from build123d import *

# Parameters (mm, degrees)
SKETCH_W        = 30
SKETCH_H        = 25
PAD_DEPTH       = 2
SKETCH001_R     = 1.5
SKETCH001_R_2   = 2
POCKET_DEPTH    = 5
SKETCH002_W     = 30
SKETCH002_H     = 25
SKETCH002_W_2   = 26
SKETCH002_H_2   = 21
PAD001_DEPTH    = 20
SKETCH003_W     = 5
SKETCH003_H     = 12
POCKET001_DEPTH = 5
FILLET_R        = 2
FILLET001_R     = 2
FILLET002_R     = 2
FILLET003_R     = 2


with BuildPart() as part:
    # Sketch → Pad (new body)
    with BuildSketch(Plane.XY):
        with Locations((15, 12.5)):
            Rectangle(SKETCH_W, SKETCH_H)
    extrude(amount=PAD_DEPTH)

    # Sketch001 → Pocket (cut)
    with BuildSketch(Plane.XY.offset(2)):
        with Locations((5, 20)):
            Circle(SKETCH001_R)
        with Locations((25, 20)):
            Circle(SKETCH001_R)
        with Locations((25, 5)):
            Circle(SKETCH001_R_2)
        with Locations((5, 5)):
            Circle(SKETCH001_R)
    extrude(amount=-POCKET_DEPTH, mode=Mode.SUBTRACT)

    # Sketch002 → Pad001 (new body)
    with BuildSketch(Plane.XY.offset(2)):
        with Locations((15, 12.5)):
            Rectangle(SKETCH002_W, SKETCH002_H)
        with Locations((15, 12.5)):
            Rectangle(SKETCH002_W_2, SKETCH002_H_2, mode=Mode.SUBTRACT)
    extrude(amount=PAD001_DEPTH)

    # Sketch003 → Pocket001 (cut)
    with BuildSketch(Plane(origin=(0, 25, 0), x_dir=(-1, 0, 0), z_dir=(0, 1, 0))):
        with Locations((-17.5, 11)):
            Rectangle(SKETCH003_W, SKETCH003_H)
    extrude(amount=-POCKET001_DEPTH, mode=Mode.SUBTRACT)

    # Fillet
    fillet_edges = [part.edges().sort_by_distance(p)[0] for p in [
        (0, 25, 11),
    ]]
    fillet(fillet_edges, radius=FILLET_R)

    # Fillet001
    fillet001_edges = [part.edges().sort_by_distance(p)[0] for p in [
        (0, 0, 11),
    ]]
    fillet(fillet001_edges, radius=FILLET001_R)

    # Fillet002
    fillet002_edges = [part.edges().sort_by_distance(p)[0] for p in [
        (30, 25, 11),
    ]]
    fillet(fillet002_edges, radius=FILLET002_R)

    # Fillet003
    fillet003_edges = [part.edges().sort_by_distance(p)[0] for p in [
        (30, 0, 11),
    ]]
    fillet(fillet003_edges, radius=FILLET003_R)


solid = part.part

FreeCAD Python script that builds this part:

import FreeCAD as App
import Part
import Sketcher


def edges_at(feature, points):
    """Names of the edges that pass closest to the given points."""
    edges = feature.Shape.Edges
    near = lambda p: min(range(len(edges)), key=lambda i: edges[i].distToShape(Part.Vertex(*p))[0])
    return sorted({f"Edge{near(p) + 1}" for p in points})


def add_polygon(sketch, points):
    """Adds a closed chain of lines whose ends are joined by coincident constraints."""
    first, n = sketch.GeometryCount, len(points)
    for a, b in zip(points, points[1:] + points[:1]):
        sketch.addGeometry(Part.LineSegment(App.Vector(*a, 0), App.Vector(*b, 0)), False)
    for i in range(n):
        sketch.addConstraint(Sketcher.Constraint("Coincident", first + i, 2, first + (i + 1) % n, 1))

doc = App.newDocument("Part")
body = doc.addObject("PartDesign::Body", "Body")

# Sketch on XY plane
sketch1 = body.newObject("Sketcher::SketchObject", "Sketch")
sketch1.AttachmentSupport = (doc.getObject("XY_Plane"), [""])
sketch1.MapMode = "FlatFace"
add_polygon(sketch1, [(0, 25), (0, 0), (30, 0), (30, 25)])  # lines 0-3
sketch1.addConstraint([
    Sketcher.Constraint("Vertical", 0),
    Sketcher.Constraint("Horizontal", 1),
    Sketcher.Constraint("Vertical", 2),
    Sketcher.Constraint("Horizontal", 3),
    Sketcher.Constraint("Coincident", 0, 2, -1, 1),
    Sketcher.Constraint("DistanceX", 1, 1, 1, 2, 30.0),
    Sketcher.Constraint("DistanceY", 0, 2, 0, 1, 25.0),
])
pad1 = body.newObject("PartDesign::Pad", "Pad")
pad1.Profile = sketch1
pad1.Length = 2

# Sketch on XY plane
sketch2 = body.newObject("Sketcher::SketchObject", "Sketch001")
sketch2.AttachmentSupport = (doc.getObject("XY_Plane"), [""])
sketch2.MapMode = "FlatFace"
sketch2.AttachmentOffset = App.Placement(App.Vector(0, 0, 2), App.Rotation())
sketch2.addGeometry([
    Part.Circle(App.Vector(5, 20, 0), App.Vector(0, 0, 1), 1.5),
    Part.Circle(App.Vector(25, 20, 0), App.Vector(0, 0, 1), 1.5),
    Part.Circle(App.Vector(25, 5, 0), App.Vector(0, 0, 1), 2),
    Part.Circle(App.Vector(5, 5, 0), App.Vector(0, 0, 1), 1.5),
], False)
sketch2.addConstraint([
    Sketcher.Constraint("Equal", 0, 1),
    Sketcher.Constraint("Equal", 1, 3),
    Sketcher.Constraint("Horizontal", 0, 3, 1, 3),
    Sketcher.Constraint("Horizontal", 2, 3, 3, 3),
    Sketcher.Constraint("Vertical", 1, 3, 2, 3),
    Sketcher.Constraint("Vertical", 0, 3, 3, 3),
    Sketcher.Constraint("Diameter", 0, 3.0),
    Sketcher.Constraint("Diameter", 2, 4.0),
    Sketcher.Constraint("DistanceX", -1, 1, 0, 3, 5.0),
    Sketcher.Constraint("DistanceY", -1, 1, 0, 3, 20.0),
    Sketcher.Constraint("DistanceX", -1, 1, 1, 3, 25.0),
    Sketcher.Constraint("DistanceY", -1, 1, 2, 3, 5.0),
])
pocket1 = body.newObject("PartDesign::Pocket", "Pocket")
pocket1.Profile = sketch2
pocket1.Length = 5

# Sketch on XY plane
sketch3 = body.newObject("Sketcher::SketchObject", "Sketch002")
sketch3.AttachmentSupport = (doc.getObject("XY_Plane"), [""])
sketch3.MapMode = "FlatFace"
sketch3.AttachmentOffset = App.Placement(App.Vector(0, 0, 2), App.Rotation())
add_polygon(sketch3, [(0, 25), (0, 0), (30, 0), (30, 25)])  # lines 0-3
add_polygon(sketch3, [(28, 2), (2, 2), (2, 23), (28, 23)])  # lines 4-7
sketch3.addConstraint([
    Sketcher.Constraint("Vertical", 0),
    Sketcher.Constraint("Horizontal", 1),
    Sketcher.Constraint("Vertical", 2),
    Sketcher.Constraint("Horizontal", 3),
    Sketcher.Constraint("Horizontal", 4),
    Sketcher.Constraint("Vertical", 5),
    Sketcher.Constraint("Horizontal", 6),
    Sketcher.Constraint("Vertical", 7),
    Sketcher.Constraint("Coincident", 0, 2, -1, 1),
    Sketcher.Constraint("DistanceX", 1, 1, 1, 2, 30.0),
    Sketcher.Constraint("DistanceX", 4, 2, 4, 1, 26.0),
    Sketcher.Constraint("DistanceY", 0, 2, 0, 1, 25.0),
    Sketcher.Constraint("DistanceY", 5, 1, 5, 2, 21.0),
    Sketcher.Constraint("DistanceX", -1, 1, 4, 2, 2.0),
    Sketcher.Constraint("DistanceY", -1, 1, 4, 2, 2.0),
])
pad2 = body.newObject("PartDesign::Pad", "Pad001")
pad2.Profile = sketch3
pad2.Length = 20

# Sketch on XZ plane
sketch4 = body.newObject("Sketcher::SketchObject", "Sketch003")
sketch4.AttachmentSupport = (doc.getObject("XZ_Plane"), [""])
sketch4.MapMode = "FlatFace"
sketch4.AttachmentOffset = App.Placement(App.Vector(0, 0, -25), App.Rotation())
add_polygon(sketch4, [(20, 17), (20, 5), (15, 5), (15, 17)])  # lines 0-3
sketch4.addConstraint([
    Sketcher.Constraint("Vertical", 0),
    Sketcher.Constraint("Horizontal", 1),
    Sketcher.Constraint("Vertical", 2),
    Sketcher.Constraint("Horizontal", 3),
    Sketcher.Constraint("DistanceX", 1, 2, 1, 1, 5.0),
    Sketcher.Constraint("DistanceY", 0, 2, 0, 1, 12.0),
    Sketcher.Constraint("DistanceX", -1, 1, 0, 2, 20.0),
    Sketcher.Constraint("DistanceY", -1, 1, 0, 2, 5.0),
])
pocket2 = body.newObject("PartDesign::Pocket", "Pocket001")
pocket2.Profile = sketch4
pocket2.Length = 5
pocket2.Reversed = True
doc.recompute()

fillet = body.newObject("PartDesign::Fillet", "Fillet")
fillet.Base = (pocket2, edges_at(pocket2, [(0, 25, 11)]))
fillet.Radius = 2
doc.recompute()

fillet2 = body.newObject("PartDesign::Fillet", "Fillet001")
fillet2.Base = (fillet, edges_at(fillet, [(0, 0, 11)]))
fillet2.Radius = 2
doc.recompute()

fillet3 = body.newObject("PartDesign::Fillet", "Fillet002")
fillet3.Base = (fillet2, edges_at(fillet2, [(30, 25, 11)]))
fillet3.Radius = 2
doc.recompute()

fillet4 = body.newObject("PartDesign::Fillet", "Fillet003")
fillet4.Base = (fillet3, edges_at(fillet3, [(30, 0, 11)]))
fillet4.Radius = 2

doc.recompute()
